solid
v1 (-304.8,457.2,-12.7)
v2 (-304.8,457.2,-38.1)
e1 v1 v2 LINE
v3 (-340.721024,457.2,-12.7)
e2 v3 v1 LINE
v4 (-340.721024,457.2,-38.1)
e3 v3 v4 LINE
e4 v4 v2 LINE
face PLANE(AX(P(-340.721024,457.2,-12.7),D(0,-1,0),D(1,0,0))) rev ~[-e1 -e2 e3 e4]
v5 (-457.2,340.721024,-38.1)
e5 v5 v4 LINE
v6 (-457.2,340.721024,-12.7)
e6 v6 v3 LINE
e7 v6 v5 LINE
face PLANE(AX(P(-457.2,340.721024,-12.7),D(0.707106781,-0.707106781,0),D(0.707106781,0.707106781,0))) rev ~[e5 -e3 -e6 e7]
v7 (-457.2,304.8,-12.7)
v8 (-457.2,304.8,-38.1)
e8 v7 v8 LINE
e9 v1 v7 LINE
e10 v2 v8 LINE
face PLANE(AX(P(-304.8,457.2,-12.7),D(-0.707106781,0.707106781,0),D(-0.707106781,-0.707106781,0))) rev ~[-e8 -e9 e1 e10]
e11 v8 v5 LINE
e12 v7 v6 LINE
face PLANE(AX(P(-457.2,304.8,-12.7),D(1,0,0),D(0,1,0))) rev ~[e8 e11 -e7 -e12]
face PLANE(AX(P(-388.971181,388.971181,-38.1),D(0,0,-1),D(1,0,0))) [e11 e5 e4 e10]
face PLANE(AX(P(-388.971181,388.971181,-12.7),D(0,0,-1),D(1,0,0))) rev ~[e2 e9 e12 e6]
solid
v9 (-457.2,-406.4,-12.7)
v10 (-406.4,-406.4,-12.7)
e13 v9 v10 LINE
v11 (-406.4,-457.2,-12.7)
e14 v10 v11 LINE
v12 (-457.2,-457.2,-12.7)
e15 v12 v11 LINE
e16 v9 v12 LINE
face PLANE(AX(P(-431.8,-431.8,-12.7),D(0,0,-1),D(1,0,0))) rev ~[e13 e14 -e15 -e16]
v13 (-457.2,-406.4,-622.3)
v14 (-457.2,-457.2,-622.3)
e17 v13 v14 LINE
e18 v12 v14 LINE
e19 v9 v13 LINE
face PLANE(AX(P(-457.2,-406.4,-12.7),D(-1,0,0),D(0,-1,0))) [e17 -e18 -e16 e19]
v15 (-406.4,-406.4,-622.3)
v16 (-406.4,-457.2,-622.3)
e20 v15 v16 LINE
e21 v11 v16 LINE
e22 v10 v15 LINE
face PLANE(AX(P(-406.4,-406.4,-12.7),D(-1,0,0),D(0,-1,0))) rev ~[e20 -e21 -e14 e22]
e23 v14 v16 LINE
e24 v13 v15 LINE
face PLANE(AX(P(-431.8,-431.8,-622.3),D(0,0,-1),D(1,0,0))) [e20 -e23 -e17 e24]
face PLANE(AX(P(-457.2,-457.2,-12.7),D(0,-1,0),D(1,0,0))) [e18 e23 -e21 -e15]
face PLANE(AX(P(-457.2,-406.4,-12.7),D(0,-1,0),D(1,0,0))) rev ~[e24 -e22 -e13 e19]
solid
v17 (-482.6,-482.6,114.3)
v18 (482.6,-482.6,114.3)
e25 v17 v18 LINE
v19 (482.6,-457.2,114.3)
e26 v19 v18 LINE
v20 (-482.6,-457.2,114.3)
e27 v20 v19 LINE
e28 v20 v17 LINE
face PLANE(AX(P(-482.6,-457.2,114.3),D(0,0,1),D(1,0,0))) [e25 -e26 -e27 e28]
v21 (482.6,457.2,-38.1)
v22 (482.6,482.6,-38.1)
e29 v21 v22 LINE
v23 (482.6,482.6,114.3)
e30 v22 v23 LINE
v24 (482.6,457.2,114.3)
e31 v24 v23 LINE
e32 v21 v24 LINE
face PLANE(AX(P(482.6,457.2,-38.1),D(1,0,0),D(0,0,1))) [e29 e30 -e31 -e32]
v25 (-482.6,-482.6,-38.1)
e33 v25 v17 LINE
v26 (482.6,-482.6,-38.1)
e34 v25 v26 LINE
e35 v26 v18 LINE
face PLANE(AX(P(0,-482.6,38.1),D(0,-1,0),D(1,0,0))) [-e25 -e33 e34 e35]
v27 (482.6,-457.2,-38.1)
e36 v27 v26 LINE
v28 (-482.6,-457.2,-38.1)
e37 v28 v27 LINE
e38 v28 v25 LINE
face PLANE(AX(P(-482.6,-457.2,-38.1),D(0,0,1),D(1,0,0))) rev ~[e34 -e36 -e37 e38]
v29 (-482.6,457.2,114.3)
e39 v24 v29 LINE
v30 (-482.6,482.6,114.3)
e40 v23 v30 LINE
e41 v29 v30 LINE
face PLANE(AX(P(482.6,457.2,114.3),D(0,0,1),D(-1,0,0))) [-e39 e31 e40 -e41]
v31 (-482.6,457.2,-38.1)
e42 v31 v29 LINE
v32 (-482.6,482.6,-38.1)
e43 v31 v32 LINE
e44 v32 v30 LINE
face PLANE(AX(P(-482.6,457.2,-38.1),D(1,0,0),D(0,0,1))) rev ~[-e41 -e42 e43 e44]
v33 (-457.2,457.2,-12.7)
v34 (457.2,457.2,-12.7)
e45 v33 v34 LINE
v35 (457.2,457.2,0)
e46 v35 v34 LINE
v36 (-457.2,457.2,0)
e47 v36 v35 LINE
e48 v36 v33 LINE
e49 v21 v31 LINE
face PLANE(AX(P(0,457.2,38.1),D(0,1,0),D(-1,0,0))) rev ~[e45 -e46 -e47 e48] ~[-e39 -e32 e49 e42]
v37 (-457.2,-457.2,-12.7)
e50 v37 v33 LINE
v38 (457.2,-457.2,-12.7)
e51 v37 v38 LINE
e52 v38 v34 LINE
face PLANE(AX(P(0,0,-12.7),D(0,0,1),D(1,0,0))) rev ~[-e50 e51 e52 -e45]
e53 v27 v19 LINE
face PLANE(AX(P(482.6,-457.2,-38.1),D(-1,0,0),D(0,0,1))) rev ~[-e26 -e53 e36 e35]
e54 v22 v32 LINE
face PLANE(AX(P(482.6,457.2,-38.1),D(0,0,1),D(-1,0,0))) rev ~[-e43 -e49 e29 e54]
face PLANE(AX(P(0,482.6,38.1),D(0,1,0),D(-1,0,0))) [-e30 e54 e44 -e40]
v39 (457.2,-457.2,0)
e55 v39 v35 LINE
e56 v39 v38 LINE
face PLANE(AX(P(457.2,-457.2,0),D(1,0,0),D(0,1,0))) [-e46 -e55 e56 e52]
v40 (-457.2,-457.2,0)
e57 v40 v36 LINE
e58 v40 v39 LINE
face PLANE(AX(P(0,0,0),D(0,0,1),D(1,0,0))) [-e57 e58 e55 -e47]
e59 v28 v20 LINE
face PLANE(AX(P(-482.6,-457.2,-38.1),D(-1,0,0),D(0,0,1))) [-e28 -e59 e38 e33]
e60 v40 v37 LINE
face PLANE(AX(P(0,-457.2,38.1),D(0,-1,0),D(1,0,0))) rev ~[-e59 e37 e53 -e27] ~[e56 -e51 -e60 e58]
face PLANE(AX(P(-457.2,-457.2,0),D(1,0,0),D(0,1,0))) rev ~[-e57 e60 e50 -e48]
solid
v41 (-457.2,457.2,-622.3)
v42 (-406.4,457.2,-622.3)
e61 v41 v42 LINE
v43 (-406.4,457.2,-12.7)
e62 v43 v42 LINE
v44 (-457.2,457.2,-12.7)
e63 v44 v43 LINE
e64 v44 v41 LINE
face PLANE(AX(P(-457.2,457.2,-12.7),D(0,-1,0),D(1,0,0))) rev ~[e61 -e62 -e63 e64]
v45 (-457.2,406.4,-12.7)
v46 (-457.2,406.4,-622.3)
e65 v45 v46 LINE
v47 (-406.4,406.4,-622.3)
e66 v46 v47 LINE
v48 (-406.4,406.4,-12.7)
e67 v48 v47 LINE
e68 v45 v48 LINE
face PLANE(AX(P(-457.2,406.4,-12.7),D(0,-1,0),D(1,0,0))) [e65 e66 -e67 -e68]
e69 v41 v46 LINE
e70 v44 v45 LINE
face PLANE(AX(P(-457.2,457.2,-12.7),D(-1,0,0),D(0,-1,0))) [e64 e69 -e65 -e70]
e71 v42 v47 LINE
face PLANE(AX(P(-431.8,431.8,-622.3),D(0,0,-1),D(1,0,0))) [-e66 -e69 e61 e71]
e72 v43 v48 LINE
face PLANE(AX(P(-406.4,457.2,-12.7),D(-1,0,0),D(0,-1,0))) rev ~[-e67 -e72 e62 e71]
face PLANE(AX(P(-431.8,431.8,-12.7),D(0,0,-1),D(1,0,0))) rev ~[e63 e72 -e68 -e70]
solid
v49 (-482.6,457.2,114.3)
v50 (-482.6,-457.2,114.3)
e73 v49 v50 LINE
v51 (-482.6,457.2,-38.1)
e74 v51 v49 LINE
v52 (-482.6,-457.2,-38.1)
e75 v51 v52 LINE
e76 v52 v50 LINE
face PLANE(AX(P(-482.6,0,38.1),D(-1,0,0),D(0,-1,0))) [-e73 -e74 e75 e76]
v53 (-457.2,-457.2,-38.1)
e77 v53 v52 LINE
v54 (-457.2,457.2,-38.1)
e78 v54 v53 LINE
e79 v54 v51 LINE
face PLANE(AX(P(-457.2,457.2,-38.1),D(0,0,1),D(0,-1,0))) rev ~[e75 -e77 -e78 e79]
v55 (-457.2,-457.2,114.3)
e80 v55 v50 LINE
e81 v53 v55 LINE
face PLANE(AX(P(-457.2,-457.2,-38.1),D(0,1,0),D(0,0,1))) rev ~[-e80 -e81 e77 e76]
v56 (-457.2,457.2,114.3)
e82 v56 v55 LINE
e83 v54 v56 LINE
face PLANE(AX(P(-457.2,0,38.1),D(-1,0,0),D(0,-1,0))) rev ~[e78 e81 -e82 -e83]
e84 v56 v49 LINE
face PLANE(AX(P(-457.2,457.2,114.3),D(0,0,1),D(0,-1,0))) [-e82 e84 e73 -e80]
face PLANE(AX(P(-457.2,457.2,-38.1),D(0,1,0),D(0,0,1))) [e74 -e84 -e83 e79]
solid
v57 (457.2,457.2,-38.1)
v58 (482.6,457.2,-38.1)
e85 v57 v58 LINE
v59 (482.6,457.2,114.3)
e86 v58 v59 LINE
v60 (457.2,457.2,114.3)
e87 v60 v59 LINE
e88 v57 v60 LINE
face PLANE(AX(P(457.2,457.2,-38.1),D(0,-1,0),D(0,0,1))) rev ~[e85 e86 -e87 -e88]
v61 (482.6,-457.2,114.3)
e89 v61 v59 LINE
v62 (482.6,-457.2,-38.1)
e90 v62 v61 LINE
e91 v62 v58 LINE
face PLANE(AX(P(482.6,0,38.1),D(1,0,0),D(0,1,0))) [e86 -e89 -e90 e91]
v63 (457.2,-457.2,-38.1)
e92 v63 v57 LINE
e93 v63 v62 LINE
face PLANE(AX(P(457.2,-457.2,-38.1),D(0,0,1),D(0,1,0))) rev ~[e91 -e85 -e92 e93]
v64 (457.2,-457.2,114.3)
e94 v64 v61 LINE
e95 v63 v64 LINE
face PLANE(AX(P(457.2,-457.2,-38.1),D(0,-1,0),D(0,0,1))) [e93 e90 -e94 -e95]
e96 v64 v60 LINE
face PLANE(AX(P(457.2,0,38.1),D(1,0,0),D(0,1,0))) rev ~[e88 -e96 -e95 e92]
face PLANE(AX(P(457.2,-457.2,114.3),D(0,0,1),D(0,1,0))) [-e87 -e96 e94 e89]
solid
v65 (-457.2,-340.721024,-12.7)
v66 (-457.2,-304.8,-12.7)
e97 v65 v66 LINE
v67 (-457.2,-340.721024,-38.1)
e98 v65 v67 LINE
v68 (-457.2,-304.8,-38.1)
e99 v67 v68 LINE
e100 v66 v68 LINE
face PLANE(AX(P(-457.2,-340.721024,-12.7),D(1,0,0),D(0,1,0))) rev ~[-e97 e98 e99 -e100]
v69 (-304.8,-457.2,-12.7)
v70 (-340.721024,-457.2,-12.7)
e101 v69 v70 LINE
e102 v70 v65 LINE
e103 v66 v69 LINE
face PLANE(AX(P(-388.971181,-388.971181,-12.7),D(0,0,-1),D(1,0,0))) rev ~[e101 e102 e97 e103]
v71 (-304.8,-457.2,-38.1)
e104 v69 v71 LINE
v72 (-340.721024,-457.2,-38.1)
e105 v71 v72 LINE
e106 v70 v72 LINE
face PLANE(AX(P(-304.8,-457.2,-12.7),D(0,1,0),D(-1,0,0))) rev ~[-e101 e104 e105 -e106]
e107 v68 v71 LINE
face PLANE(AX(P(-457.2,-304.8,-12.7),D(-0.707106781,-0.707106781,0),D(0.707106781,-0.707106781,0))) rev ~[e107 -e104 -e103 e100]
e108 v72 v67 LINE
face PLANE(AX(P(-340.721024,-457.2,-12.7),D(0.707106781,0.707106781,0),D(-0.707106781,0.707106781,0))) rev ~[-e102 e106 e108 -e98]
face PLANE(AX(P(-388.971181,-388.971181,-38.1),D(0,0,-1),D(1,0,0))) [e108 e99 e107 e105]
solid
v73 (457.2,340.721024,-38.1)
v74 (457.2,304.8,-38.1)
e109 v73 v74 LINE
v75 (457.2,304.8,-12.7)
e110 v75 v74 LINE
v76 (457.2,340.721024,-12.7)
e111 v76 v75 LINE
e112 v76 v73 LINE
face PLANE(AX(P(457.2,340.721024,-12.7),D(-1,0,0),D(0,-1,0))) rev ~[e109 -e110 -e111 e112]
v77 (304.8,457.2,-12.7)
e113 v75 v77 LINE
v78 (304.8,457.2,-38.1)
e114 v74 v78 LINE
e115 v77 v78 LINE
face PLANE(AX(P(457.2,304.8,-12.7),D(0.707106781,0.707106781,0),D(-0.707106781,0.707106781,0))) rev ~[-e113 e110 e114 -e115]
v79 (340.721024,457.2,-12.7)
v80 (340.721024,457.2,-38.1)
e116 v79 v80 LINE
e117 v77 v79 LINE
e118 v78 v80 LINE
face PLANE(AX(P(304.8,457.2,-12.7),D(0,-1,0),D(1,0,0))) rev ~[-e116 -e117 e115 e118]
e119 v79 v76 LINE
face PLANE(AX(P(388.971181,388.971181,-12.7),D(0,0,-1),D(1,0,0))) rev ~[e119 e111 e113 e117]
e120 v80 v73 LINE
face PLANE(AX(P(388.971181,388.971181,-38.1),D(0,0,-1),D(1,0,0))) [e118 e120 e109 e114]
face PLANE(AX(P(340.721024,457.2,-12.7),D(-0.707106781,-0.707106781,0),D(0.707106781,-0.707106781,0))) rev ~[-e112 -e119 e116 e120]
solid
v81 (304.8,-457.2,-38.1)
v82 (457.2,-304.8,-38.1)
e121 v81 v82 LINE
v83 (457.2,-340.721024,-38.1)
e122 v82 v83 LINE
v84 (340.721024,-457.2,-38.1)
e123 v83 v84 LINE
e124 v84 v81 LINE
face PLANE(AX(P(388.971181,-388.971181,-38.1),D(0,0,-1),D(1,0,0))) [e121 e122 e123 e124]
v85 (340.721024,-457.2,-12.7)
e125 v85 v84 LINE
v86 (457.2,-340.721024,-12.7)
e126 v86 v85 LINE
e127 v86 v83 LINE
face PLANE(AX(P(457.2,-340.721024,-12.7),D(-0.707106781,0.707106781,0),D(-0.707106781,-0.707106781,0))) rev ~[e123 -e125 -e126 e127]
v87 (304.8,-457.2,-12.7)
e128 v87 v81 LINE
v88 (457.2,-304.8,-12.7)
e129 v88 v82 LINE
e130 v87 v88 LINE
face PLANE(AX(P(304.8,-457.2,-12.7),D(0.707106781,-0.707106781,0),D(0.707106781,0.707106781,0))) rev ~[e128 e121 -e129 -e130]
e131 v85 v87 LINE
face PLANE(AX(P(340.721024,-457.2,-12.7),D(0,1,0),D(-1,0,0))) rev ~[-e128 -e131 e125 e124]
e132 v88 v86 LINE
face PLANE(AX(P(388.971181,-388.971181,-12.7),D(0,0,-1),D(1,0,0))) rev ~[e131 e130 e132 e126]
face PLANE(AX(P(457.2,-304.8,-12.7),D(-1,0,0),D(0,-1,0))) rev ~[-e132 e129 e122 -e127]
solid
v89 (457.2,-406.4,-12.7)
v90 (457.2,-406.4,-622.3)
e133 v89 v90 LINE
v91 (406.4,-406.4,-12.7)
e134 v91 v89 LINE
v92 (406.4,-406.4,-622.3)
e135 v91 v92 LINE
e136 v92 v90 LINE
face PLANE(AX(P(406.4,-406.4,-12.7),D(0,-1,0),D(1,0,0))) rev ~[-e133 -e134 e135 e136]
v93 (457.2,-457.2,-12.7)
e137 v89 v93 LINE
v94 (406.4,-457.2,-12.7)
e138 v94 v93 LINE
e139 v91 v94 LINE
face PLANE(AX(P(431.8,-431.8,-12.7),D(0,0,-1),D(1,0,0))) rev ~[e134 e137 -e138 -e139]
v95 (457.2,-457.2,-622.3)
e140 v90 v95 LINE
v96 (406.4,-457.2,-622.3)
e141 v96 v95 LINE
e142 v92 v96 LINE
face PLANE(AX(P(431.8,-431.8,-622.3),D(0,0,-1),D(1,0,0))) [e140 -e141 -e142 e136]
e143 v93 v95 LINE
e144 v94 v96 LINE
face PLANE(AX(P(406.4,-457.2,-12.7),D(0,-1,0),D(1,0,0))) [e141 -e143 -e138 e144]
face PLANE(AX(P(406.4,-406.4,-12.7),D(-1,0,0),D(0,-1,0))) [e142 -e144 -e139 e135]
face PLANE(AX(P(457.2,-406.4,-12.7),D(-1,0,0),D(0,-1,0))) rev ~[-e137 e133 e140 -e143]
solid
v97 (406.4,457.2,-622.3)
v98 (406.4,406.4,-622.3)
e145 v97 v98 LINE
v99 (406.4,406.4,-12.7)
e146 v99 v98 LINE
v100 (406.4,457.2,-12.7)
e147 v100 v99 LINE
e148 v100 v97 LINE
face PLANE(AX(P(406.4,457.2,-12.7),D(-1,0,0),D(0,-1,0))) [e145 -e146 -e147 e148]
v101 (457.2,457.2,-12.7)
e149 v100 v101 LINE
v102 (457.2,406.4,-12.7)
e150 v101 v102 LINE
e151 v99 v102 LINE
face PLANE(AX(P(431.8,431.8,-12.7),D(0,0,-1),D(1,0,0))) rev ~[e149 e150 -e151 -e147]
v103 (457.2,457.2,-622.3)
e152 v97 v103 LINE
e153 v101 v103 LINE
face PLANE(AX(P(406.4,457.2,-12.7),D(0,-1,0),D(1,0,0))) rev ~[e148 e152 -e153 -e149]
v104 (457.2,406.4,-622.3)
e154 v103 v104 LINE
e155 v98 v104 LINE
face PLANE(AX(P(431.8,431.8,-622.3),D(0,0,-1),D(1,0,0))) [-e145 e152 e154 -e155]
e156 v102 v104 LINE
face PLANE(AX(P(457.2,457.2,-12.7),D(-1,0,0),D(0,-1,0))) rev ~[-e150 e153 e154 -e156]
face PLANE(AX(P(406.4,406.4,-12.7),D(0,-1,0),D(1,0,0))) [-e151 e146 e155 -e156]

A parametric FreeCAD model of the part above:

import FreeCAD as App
import Part
import Sketcher

V = App.Vector
Q = App.Units.Quantity


def add_polygon(sketch, points):
    """Adds a closed chain of lines whose ends are joined by coincident constraints."""
    first, n = sketch.GeometryCount, len(points)
    for a, b in zip(points, points[1:] + points[:1]):
        sketch.addGeometry(Part.LineSegment(App.Vector(*a, 0), App.Vector(*b, 0)), False)
    for i in range(n):
        sketch.addConstraint(Sketcher.Constraint("Coincident", first + i, 2, first + (i + 1) % n, 1))

doc = App.newDocument("Part")
body = doc.addObject("PartDesign::Body", "Body")

sketch1 = body.newObject("Sketcher::SketchObject", "Sketch")
sketch1.AttachmentSupport = (doc.getObject("XY_Plane"), [""])
sketch1.MapMode = "FlatFace"
add_polygon(sketch1, [(-457.2, 457.2), (-457.2, -457.2), (457.2, -457.2), (457.2, 457.2)])
sketch1.addConstraint(Sketcher.Constraint("Vertical", 0))
sketch1.addConstraint(Sketcher.Constraint("Horizontal", 1))
sketch1.addConstraint(Sketcher.Constraint("Vertical", 2))
sketch1.addConstraint(Sketcher.Constraint("Horizontal", 3))
sketch1.addConstraint(Sketcher.Constraint("Symmetric", 0, 2, 2, 2, -1, 1))
sketch1.addConstraint(Sketcher.Constraint("Equal", 3, 0))
sketch1.addConstraint(Sketcher.Constraint("DistanceX", 1, 1, 1, 2, Q("36 in")))
pad1 = body.newObject("PartDesign::Pad", "Pad")
pad1.Profile = sketch1
pad1.Length = Q("0.5 in")
pad1.Reversed = True

sketch2 = body.newObject("Sketcher::SketchObject", "Sketch001")
sketch2.AttachmentSupport = (doc.getObject("XZ_Plane"), [""])
sketch2.MapMode = "FlatFace"
sketch2.AttachmentOffset = App.Placement(V(0, 0, 18 * 25.4), App.Rotation())
add_polygon(sketch2, [(-482.6, 114.3), (-482.6, -38.1), (482.6, -38.1), (482.6, 114.3)])
sketch2.addConstraint(Sketcher.Constraint("Vertical", 0))
sketch2.addConstraint(Sketcher.Constraint("Horizontal", 1))
sketch2.addConstraint(Sketcher.Constraint("Vertical", 2))
sketch2.addConstraint(Sketcher.Constraint("Horizontal", 3))
sketch2.addConstraint(Sketcher.Constraint("DistanceX", 1, 1, 1, 2, Q("38 in")))
sketch2.addConstraint(Sketcher.Constraint("DistanceY", 0, 2, 0, 1, Q("6 in")))
sketch2.addConstraint(Sketcher.Constraint("DistanceX", 0, 2, -1, 1, Q("19 in")))
sketch2.addConstraint(Sketcher.Constraint("DistanceY", 0, 2, -1, 1, Q("1.5 in")))
pad2 = body.newObject("PartDesign::Pad", "Pad001")
pad2.Profile = sketch2
pad2.Length = Q("1 in")

sketch3 = body.newObject("Sketcher::SketchObject", "Sketch002")
sketch3.AttachmentSupport = (doc.getObject("XZ_Plane"), [""])
sketch3.MapMode = "FlatFace"
sketch3.AttachmentOffset = App.Placement(V(0, 0, -18 * 25.4), App.Rotation())
add_polygon(sketch3, [(482.6, 114.3), (482.6, -38.1), (-482.6, -38.1), (-482.6, 114.3)])
sketch3.addConstraint(Sketcher.Constraint("Vertical", 0))
sketch3.addConstraint(Sketcher.Constraint("Horizontal", 1))
sketch3.addConstraint(Sketcher.Constraint("Vertical", 2))
sketch3.addConstraint(Sketcher.Constraint("Horizontal", 3))
sketch3.addConstraint(Sketcher.Constraint("DistanceX", 1, 2, 1, 1, Q("38 in")))
sketch3.addConstraint(Sketcher.Constraint("DistanceY", 0, 2, 0, 1, Q("6 in")))
sketch3.addConstraint(Sketcher.Constraint("DistanceX", -1, 1, 0, 2, Q("19 in")))
sketch3.addConstraint(Sketcher.Constraint("DistanceY", 0, 2, -1, 1, Q("1.5 in")))
pad3 = body.newObject("PartDesign::Pad", "Pad002")
pad3.Profile = sketch3
pad3.Length = Q("1 in")
pad3.Reversed = True
body2 = doc.addObject("PartDesign::Body", "Body001")

sketch4 = body2.newObject("Sketcher::SketchObject", "Sketch003")
sketch4.AttachmentSupport = (doc.getObject("YZ_Plane001"), [""])
sketch4.MapMode = "FlatFace"
sketch4.AttachmentOffset = App.Placement(V(0, 0, -18 * 25.4), App.Rotation())
add_polygon(sketch4, [(457.2, 114.3), (457.2, -38.1), (-457.2, -38.1), (-457.2, 114.3)])
sketch4.addConstraint(Sketcher.Constraint("Vertical", 0))
sketch4.addConstraint(Sketcher.Constraint("Horizontal", 1))
sketch4.addConstraint(Sketcher.Constraint("Vertical", 2))
sketch4.addConstraint(Sketcher.Constraint("Horizontal", 3))
sketch4.addConstraint(Sketcher.Constraint("DistanceX", 1, 2, 1, 1, Q("36 in")))
sketch4.addConstraint(Sketcher.Constraint("DistanceY", 0, 2, 0, 1, Q("6 in")))
sketch4.addConstraint(Sketcher.Constraint("DistanceX", -1, 1, 0, 2, Q("18 in")))
sketch4.addConstraint(Sketcher.Constraint("DistanceY", 0, 2, -1, 1, Q("1.5 in")))
pad4 = body2.newObject("PartDesign::Pad", "Pad003")
pad4.Profile = sketch4
pad4.Length = Q("1 in")
pad4.Reversed = True
body3 = doc.addObject("PartDesign::Body", "Body002")

sketch5 = body3.newObject("Sketcher::SketchObject", "Sketch004")
sketch5.AttachmentSupport = (doc.getObject("YZ_Plane002"), [""])
sketch5.MapMode = "FlatFace"
sketch5.AttachmentOffset = App.Placement(V(0, 0, 18 * 25.4), App.Rotation())
add_polygon(sketch5, [(-457.2, 114.3), (-457.2, -38.1), (457.2, -38.1), (457.2, 114.3)])
sketch5.addConstraint(Sketcher.Constraint("Vertical", 0))
sketch5.addConstraint(Sketcher.Constraint("Horizontal", 1))
sketch5.addConstraint(Sketcher.Constraint("Vertical", 2))
sketch5.addConstraint(Sketcher.Constraint("Horizontal", 3))
sketch5.addConstraint(Sketcher.Constraint("DistanceX", 1, 1, 1, 2, Q("36 in")))
sketch5.addConstraint(Sketcher.Constraint("DistanceY", 0, 2, 0, 1, Q("6 in")))
sketch5.addConstraint(Sketcher.Constraint("DistanceX", 0, 2, -1, 1, Q("18 in")))
sketch5.addConstraint(Sketcher.Constraint("DistanceY", 0, 2, -1, 1, Q("1.5 in")))
pad5 = body3.newObject("PartDesign::Pad", "Pad004")
pad5.Profile = sketch5
pad5.Length = Q("1 in")
body4 = doc.addObject("PartDesign::Body", "Body003")
body4.AllowCompound = True

sketch6 = body4.newObject("Sketcher::SketchObject", "Sketch005")
sketch6.AttachmentSupport = (doc.getObject("XY_Plane003"), [""])
sketch6.MapMode = "FlatFace"
sketch6.AttachmentOffset = App.Placement(V(0, 0, -0.5 * 25.4), App.Rotation())
add_polygon(sketch6, [(-457.2, -304.8), (-304.8, -457.2), (-340.721024, -457.2), (-457.2, -340.721024)])
add_polygon(sketch6, [(340.721024, -457.2), (304.8, -457.2), (457.2, -304.8), (457.2, -340.721024)])
add_polygon(sketch6, [(340.721024, 457.2), (457.2, 340.721024), (457.2, 304.8), (304.8, 457.2)])
add_polygon(sketch6, [(-340.721024, 457.2), (-304.8, 457.2), (-457.2, 304.8), (-457.2, 340.721024)])
sketch6.addConstraint(Sketcher.Constraint("Horizontal", 1))
sketch6.addConstraint(Sketcher.Constraint("Vertical", 3))
sketch6.addConstraint(Sketcher.Constraint("Horizontal", 4))
sketch6.addConstraint(Sketcher.Constraint("Vertical", 6))
sketch6.addConstraint(Sketcher.Constraint("Vertical", 9))
sketch6.addConstraint(Sketcher.Constraint("Horizontal", 11))
sketch6.addConstraint(Sketcher.Constraint("Horizontal", 12))
sketch6.addConstraint(Sketcher.Constraint("Vertical", 14))
sketch6.addConstraint(Sketcher.Constraint("Symmetric", 2, 2, 8, 2, -1, 1))
sketch6.addConstraint(Sketcher.Constraint("Symmetric", 0, 2, 10, 2, -1, 1))
sketch6.addConstraint(Sketcher.Constraint("Symmetric", 4, 2, 12, 2, -1, 1))
sketch6.addConstraint(Sketcher.Constraint("Symmetric", 5, 2, 13, 2, -1, 1))
sketch6.addConstraint(Sketcher.Constraint("Symmetric", 0, 2, 4, 2, -2))
sketch6.addConstraint(Sketcher.Constraint("Symmetric", 3, 2, 5, 2, -2))
sketch6.addConstraint(Sketcher.Constraint("Parallel", 0, 2))
sketch6.addConstraint(Sketcher.Constraint("Perpendicular", 2, 5))
sketch6.addConstraint(Sketcher.Constraint("Parallel", 5, 7))
sketch6.addConstraint(Sketcher.Constraint("Perpendicular", 7, 8))
sketch6.addConstraint(Sketcher.Constraint("Parallel", 8, 10))
sketch6.addConstraint(Sketcher.Constraint("Parallel", 13, 15))
sketch6.addConstraint(Sketcher.Constraint("Horizontal", 2, 2, 6, 2))
sketch6.addConstraint(Sketcher.Constraint("Horizontal", 8, 2, 14, 2))
sketch6.addConstraint(Sketcher.Constraint("DistanceX", 0, 2, -1, 1, Q("12 in")))
sketch6.addConstraint(Sketcher.Constraint("DistanceY", 0, 2, -1, 1, Q("18 in")))
sketch6.addConstraint(Sketcher.Constraint("DistanceX", 2, 2, -1, 1, Q("18 in")))
sketch6.addConstraint(Sketcher.Constraint("DistanceX", 1, 2, 1, 1, 35.921024))
pad6 = body4.newObject("PartDesign::Pad", "Pad005")
pad6.Profile = sketch6
pad6.Length = Q("1 in")
pad6.Reversed = True
body5 = doc.addObject("PartDesign::Body", "Body004")
body5.AllowCompound = True

sketch7 = body5.newObject("Sketcher::SketchObject", "Sketch006")
sketch7.AttachmentSupport = (doc.getObject("XY_Plane004"), [""])
sketch7.MapMode = "FlatFace"
sketch7.AttachmentOffset = App.Placement(V(0, 0, -0.5 * 25.4), App.Rotation())
add_polygon(sketch7, [(-457.2, -457.2), (-457.2, -406.4), (-406.4, -406.4), (-406.4, -457.2)])
add_polygon(sketch7, [(406.4, -457.2), (406.4, -406.4), (457.2, -406.4), (457.2, -457.2)])
add_polygon(sketch7, [(406.4, 406.4), (406.4, 457.2), (457.2, 457.2), (457.2, 406.4)])
add_polygon(sketch7, [(-457.2, 406.4), (-457.2, 457.2), (-406.4, 457.2), (-406.4, 406.4)])
sketch7.addConstraint(Sketcher.Constraint("Vertical", 0))
sketch7.addConstraint(Sketcher.Constraint("Horizontal", 1))
sketch7.addConstraint(Sketcher.Constraint("Vertical", 2))
sketch7.addConstraint(Sketcher.Constraint("Horizontal", 3))
sketch7.addConstraint(Sketcher.Constraint("Vertical", 4))
sketch7.addConstraint(Sketcher.Constraint("Horizontal", 5))
sketch7.addConstraint(Sketcher.Constraint("Vertical", 6))
sketch7.addConstraint(Sketcher.Constraint("Horizontal", 7))
sketch7.addConstraint(Sketcher.Constraint("Vertical", 8))
sketch7.addConstraint(Sketcher.Constraint("Horizontal", 9))
sketch7.addConstraint(Sketcher.Constraint("Vertical", 10))
sketch7.addConstraint(Sketcher.Constraint("Horizontal", 11))
sketch7.addConstraint(Sketcher.Constraint("Vertical", 12))
sketch7.addConstraint(Sketcher.Constraint("Horizontal", 13))
sketch7.addConstraint(Sketcher.Constraint("Vertical", 14))
sketch7.addConstraint(Sketcher.Constraint("Horizontal", 15))
sketch7.addConstraint(Sketcher.Constraint("Symmetric", 2, 2, 8, 2, -1, 1))
sketch7.addConstraint(Sketcher.Constraint("Symmetric", 0, 2, 10, 2, -1, 1))
sketch7.addConstraint(Sketcher.Constraint("Symmetric", 6, 2, 12, 2, -1, 1))
sketch7.addConstraint(Sketcher.Constraint("Symmetric", 4, 2, 14, 2, -1, 1))
sketch7.addConstraint(Sketcher.Constraint("Symmetric", 1, 2, 4, 2, -2))
sketch7.addConstraint(Sketcher.Constraint("Symmetric", 3, 2, 6, 2, -2))
sketch7.addConstraint(Sketcher.Constraint("Equal", 15, 0))
sketch7.addConstraint(Sketcher.Constraint("DistanceX", 1, 1, 1, 2, Q("2 in")))
sketch7.addConstraint(Sketcher.Constraint("DistanceX", 0, 2, -1, 1, Q("18 in")))
sketch7.addConstraint(Sketcher.Constraint("DistanceY", 0, 2, -1, 1, Q("16 in")))
pad7 = body5.newObject("PartDesign::Pad", "Pad006")
pad7.Profile = sketch7
pad7.Length = Q("24 in")
pad7.Reversed = True

doc.recompute()
